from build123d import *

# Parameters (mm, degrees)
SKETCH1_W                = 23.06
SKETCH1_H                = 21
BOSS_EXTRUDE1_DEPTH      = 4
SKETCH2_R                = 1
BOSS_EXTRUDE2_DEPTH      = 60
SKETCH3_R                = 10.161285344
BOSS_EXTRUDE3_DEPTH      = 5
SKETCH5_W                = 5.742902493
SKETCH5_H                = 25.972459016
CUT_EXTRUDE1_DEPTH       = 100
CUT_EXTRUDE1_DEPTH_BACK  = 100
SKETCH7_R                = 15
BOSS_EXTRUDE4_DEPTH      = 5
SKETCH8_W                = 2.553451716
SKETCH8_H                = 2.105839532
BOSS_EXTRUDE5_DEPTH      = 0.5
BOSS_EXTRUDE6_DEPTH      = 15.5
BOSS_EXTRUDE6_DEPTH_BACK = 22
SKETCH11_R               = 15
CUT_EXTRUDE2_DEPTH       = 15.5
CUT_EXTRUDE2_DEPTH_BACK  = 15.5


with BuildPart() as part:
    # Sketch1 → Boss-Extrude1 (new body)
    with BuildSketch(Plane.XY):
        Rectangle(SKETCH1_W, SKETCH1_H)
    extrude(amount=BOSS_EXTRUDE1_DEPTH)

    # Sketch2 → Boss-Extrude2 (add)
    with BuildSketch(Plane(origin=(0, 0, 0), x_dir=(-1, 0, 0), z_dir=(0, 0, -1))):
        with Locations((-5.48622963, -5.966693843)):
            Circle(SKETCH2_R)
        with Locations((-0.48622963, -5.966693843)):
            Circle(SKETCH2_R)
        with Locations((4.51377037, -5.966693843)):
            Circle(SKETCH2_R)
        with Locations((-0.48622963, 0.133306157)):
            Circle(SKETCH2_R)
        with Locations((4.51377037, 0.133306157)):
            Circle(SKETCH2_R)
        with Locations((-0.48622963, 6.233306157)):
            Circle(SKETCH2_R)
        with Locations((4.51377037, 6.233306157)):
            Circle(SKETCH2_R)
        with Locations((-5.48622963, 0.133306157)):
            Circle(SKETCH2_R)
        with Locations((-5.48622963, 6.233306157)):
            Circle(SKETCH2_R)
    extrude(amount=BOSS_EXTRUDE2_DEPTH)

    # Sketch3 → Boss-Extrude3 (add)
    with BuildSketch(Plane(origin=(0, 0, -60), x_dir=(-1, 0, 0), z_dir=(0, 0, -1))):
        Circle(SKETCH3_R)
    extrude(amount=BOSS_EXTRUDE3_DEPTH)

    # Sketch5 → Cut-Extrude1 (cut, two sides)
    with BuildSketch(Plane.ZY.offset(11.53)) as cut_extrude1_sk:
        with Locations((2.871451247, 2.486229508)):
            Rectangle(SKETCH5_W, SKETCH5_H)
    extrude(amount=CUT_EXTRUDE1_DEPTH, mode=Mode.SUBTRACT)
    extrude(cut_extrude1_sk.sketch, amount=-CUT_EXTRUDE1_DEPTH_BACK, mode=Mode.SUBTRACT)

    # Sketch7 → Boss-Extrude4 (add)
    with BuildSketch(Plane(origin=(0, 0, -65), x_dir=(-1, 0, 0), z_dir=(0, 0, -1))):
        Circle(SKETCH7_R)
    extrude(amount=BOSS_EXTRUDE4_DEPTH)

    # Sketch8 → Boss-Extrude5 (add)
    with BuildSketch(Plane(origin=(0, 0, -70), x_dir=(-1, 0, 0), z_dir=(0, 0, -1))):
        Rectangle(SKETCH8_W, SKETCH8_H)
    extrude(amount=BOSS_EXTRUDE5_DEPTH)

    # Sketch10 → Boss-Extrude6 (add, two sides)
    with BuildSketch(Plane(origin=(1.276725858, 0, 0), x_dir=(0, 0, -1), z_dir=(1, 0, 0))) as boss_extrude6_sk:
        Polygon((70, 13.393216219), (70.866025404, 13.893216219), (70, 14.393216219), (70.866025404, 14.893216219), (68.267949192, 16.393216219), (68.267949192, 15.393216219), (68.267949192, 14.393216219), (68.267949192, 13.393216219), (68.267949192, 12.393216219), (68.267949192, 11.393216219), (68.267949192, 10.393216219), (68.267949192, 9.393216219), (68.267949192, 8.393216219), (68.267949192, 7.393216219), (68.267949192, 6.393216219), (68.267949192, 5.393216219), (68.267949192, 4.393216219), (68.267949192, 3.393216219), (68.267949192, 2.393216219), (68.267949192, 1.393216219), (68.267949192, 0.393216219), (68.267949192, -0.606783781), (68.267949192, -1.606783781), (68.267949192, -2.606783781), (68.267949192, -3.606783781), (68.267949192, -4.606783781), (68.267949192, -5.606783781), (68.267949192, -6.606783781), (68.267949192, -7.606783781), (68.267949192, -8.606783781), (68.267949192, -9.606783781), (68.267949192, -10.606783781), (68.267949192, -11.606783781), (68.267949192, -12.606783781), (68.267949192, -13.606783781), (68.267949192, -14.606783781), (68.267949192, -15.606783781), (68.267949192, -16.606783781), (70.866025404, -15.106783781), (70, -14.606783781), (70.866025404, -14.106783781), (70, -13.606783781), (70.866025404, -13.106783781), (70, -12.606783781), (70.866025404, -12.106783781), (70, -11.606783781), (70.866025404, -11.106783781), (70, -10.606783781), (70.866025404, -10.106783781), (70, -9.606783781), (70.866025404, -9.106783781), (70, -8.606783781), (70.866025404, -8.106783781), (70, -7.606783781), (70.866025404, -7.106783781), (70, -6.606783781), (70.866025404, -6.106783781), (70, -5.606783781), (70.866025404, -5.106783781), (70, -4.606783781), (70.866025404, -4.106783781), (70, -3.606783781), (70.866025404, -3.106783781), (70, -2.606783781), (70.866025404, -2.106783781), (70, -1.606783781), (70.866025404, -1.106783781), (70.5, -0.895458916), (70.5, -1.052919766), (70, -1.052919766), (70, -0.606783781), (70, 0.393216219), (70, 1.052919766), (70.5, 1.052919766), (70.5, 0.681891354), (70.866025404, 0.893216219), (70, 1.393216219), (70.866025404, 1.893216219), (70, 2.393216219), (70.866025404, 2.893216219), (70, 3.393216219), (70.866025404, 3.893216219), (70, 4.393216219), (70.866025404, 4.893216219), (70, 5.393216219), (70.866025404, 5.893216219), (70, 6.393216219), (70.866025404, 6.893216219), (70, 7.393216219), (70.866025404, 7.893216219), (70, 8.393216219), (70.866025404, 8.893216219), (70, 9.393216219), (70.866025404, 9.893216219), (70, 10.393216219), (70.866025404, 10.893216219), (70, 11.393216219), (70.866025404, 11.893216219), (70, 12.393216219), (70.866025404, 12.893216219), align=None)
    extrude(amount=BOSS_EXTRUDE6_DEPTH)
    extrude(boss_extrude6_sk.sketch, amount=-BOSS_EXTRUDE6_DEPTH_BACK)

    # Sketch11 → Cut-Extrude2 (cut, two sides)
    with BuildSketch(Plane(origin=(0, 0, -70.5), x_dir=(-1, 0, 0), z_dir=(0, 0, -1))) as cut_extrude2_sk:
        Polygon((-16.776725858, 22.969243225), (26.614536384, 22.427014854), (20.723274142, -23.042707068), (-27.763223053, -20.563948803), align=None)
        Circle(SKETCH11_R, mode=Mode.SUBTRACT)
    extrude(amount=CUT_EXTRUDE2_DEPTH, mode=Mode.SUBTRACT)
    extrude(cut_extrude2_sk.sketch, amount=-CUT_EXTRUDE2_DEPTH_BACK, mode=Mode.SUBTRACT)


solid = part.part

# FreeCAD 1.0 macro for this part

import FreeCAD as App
import Part
import Sketcher

V = App.Vector
Q = App.Units.Quantity


def add_polygon(sketch, points):
    """Adds a closed chain of lines whose ends are joined by coincident constraints."""
    first, n = sketch.GeometryCount, len(points)
    for a, b in zip(points, points[1:] + points[:1]):
        sketch.addGeometry(Part.LineSegment(App.Vector(*a, 0), App.Vector(*b, 0)), False)
    for i in range(n):
        sketch.addConstraint(Sketcher.Constraint("Coincident", first + i, 2, first + (i + 1) % n, 1))

doc = App.newDocument("Part")
body = doc.addObject("PartDesign::Body", "Body")

# Sketch on XY plane
sketch1 = doc.addObject("Sketcher::SketchObject", "Sketch")
body.addObject(sketch1)
sketch1.AttachmentSupport = (doc.XY_Plane, [""])
sketch1.MapMode = "FlatFace"
add_polygon(sketch1, [(-11.53, 10.5), (-11.53, -10.5), (11.53, -10.5), (11.53, 10.5)])  # lines 0-3
sketch1.addConstraint(Sketcher.Constraint("Vertical", 0))
sketch1.addConstraint(Sketcher.Constraint("Horizontal", 1))
sketch1.addConstraint(Sketcher.Constraint("Vertical", 2))
sketch1.addConstraint(Sketcher.Constraint("Horizontal", 3))
sketch1.addConstraint(Sketcher.Constraint("Symmetric", 0, 2, 2, 2, -1, 1))
sketch1.addConstraint(Sketcher.Constraint("DistanceY", 0, 2, 0, 1, 21.0))
sketch1.addConstraint(Sketcher.Constraint("DistanceX", 1, 1, 1, 2, 23.06))
pad1 = doc.addObject("PartDesign::Pad", "Pad")
body.addObject(pad1)
pad1.Profile = sketch1
pad1.Length = 4

# Sketch on XY plane
sketch2 = doc.addObject("Sketcher::SketchObject", "Sketch001")
body.addObject(sketch2)
sketch2.AttachmentSupport = (doc.XY_Plane, [""])
sketch2.MapMode = "FlatFace"
sketch2.addGeometry(Part.Circle(V(5.48623, -5.966694, 0), V(0, 0, 1), 1), False)
sketch2.addGeometry(Part.Circle(V(0.48623, -5.966694, 0), V(0, 0, 1), 1), False)
sketch2.addGeometry(Part.Circle(V(-4.51377, -5.966694, 0), V(0, 0, 1), 1), False)
sketch2.addGeometry(Part.Circle(V(0.48623, 0.133306, 0), V(0, 0, 1), 1), False)
sketch2.addGeometry(Part.Circle(V(-4.51377, 0.133306, 0), V(0, 0, 1), 1), False)
sketch2.addGeometry(Part.Circle(V(0.48623, 6.233306, 0), V(0, 0, 1), 1), False)
sketch2.addGeometry(Part.Circle(V(-4.51377, 6.233306, 0), V(0, 0, 1), 1), False)
sketch2.addGeometry(Part.Circle(V(5.48623, 0.133306, 0), V(0, 0, 1), 1), False)
sketch2.addGeometry(Part.Circle(V(5.48623, 6.233306, 0), V(0, 0, 1), 1), False)
sketch2.addConstraint(Sketcher.Constraint("Equal", 0, 1))
sketch2.addConstraint(Sketcher.Constraint("Equal", 1, 2))
sketch2.addConstraint(Sketcher.Constraint("Equal", 2, 3))
sketch2.addConstraint(Sketcher.Constraint("Equal", 3, 4))
sketch2.addConstraint(Sketcher.Constraint("Equal", 4, 5))
sketch2.addConstraint(Sketcher.Constraint("Equal", 5, 6))
sketch2.addConstraint(Sketcher.Constraint("Equal", 6, 7))
sketch2.addConstraint(Sketcher.Constraint("Equal", 7, 8))
sketch2.addConstraint(Sketcher.Constraint("Horizontal", 0, 3, 1, 3))
sketch2.addConstraint(Sketcher.Constraint("Horizontal", 1, 3, 2, 3))
sketch2.addConstraint(Sketcher.Constraint("Horizontal", 3, 3, 4, 3))
sketch2.addConstraint(Sketcher.Constraint("Horizontal", 5, 3, 6, 3))
sketch2.addConstraint(Sketcher.Constraint("Horizontal", 4, 3, 7, 3))
sketch2.addConstraint(Sketcher.Constraint("Horizontal", 6, 3, 8, 3))
sketch2.addConstraint(Sketcher.Constraint("Vertical", 1, 3, 3, 3))
sketch2.addConstraint(Sketcher.Constraint("Vertical", 2, 3, 4, 3))
sketch2.addConstraint(Sketcher.Constraint("Vertical", 3, 3, 5, 3))
sketch2.addConstraint(Sketcher.Constraint("Vertical", 4, 3, 6, 3))
sketch2.addConstraint(Sketcher.Constraint("Vertical", 0, 3, 7, 3))
sketch2.addConstraint(Sketcher.Constraint("Vertical", 7, 3, 8, 3))
sketch2.addConstraint(Sketcher.Constraint("Diameter", 0, 2.0))
sketch2.addConstraint(Sketcher.Constraint("DistanceX", 1, 3, 0, 3, 5.0))
sketch2.addConstraint(Sketcher.Constraint("DistanceX", 2, 3, 1, 3, 5.0))
sketch2.addConstraint(Sketcher.Constraint("DistanceY", 1, 3, 3, 3, 6.1))
sketch2.addConstraint(Sketcher.Constraint("DistanceY", 3, 3, 5, 3, 6.1))
sketch2.addConstraint(Sketcher.Constraint("DistanceX", -1, 1, 0, 3, 5.48623))
sketch2.addConstraint(Sketcher.Constraint("DistanceY", 0, 3, -1, 1, 5.966694))
pad2 = doc.addObject("PartDesign::Pad", "Pad001")
body.addObject(pad2)
pad2.Profile = sketch2
pad2.Length = 60
pad2.Reversed = True

# Sketch on XY plane
sketch3 = doc.addObject("Sketcher::SketchObject", "Sketch002")
body.addObject(sketch3)
sketch3.AttachmentSupport = (doc.XY_Plane, [""])
sketch3.MapMode = "FlatFace"
sketch3.AttachmentOffset = App.Placement(V(0, 0, -60), App.Rotation())
sketch3.addGeometry(Part.Circle(V(0, 0, 0), V(0, 0, 1), 10.161285), False)
sketch3.addConstraint(Sketcher.Constraint("Coincident", 0, 3, -1, 1))
sketch3.addConstraint(Sketcher.Constraint("Diameter", 0, 20.322571))
pad3 = doc.addObject("PartDesign::Pad", "Pad002")
body.addObject(pad3)
pad3.Profile = sketch3
pad3.Length = 5
pad3.Reversed = True

# Sketch on YZ plane
sketch4 = doc.addObject("Sketcher::SketchObject", "Sketch003")
body.addObject(sketch4)
sketch4.AttachmentSupport = (doc.YZ_Plane, [""])
sketch4.MapMode = "FlatFace"
sketch4.AttachmentOffset = App.Placement(V(0, 0, -11.53), App.Rotation())
add_polygon(sketch4, [(15.472459, 0), (-10.5, 0), (-10.5, 5.742902), (15.472459, 5.742902)])  # lines 0-3
sketch4.addConstraint(Sketcher.Constraint("Horizontal", 0))
sketch4.addConstraint(Sketcher.Constraint("Vertical", 1))
sketch4.addConstraint(Sketcher.Constraint("Horizontal", 2))
sketch4.addConstraint(Sketcher.Constraint("Vertical", 3))
sketch4.addConstraint(Sketcher.Constraint("PointOnObject", 0, 2, -1))
sketch4.addConstraint(Sketcher.Constraint("DistanceX", 0, 2, -1, 1, 10.5))
sketch4.addConstraint(Sketcher.Constraint("DistanceX", 0, 2, 0, 1, 25.972459))
sketch4.addConstraint(Sketcher.Constraint("DistanceY", 1, 1, 1, 2, 5.742902))
pocket1 = doc.addObject("PartDesign::Pocket", "Pocket")
body.addObject(pocket1)
pocket1.Profile = sketch4
pocket1.Type = "ThroughAll"
pocket1.Midplane = True

# Sketch on XY plane
sketch5 = doc.addObject("Sketcher::SketchObject", "Sketch004")
body.addObject(sketch5)
sketch5.AttachmentSupport = (doc.XY_Plane, [""])
sketch5.MapMode = "FlatFace"
sketch5.AttachmentOffset = App.Placement(V(0, 0, -65), App.Rotation())
sketch5.addGeometry(Part.Circle(V(0, 0, 0), V(0, 0, 1), 15), False)
sketch5.addConstraint(Sketcher.Constraint("Coincident", 0, 3, -1, 1))
sketch5.addConstraint(Sketcher.Constraint("Diameter", 0, 30.0))
pad4 = doc.addObject("PartDesign::Pad", "Pad003")
body.addObject(pad4)
pad4.Profile = sketch5
pad4.Length = 5
pad4.Reversed = True

# Sketch on XY plane
sketch6 = doc.addObject("Sketcher::SketchObject", "Sketch005")
body.addObject(sketch6)
sketch6.AttachmentSupport = (doc.XY_Plane, [""])
sketch6.MapMode = "FlatFace"
sketch6.AttachmentOffset = App.Placement(V(0, 0, -70), App.Rotation())
add_polygon(sketch6, [(1.276726, 1.05292), (1.276726, -1.05292), (-1.276726, -1.05292), (-1.276726, 1.05292)])  # lines 0-3
sketch6.addConstraint(Sketcher.Constraint("Vertical", 0))
sketch6.addConstraint(Sketcher.Constraint("Horizontal", 1))
sketch6.addConstraint(Sketcher.Constraint("Vertical", 2))
sketch6.addConstraint(Sketcher.Constraint("Horizontal", 3))
sketch6.addConstraint(Sketcher.Constraint("Symmetric", 0, 2, 2, 2, -1, 1))
sketch6.addConstraint(Sketcher.Constraint("DistanceX", 1, 2, 1, 1, 2.553452))
sketch6.addConstraint(Sketcher.Constraint("DistanceY", 0, 2, 0, 1, 2.10584))
pad5 = doc.addObject("PartDesign::Pad", "Pad004")
body.addObject(pad5)
pad5.Profile = sketch6
pad5.Length = 0.5
pad5.Reversed = True

# Sketch on YZ plane
sketch7 = doc.addObject("Sketcher::SketchObject", "Sketch006")
body.addObject(sketch7)
sketch7.AttachmentSupport = (doc.YZ_Plane, [""])
sketch7.MapMode = "FlatFace"
sketch7.AttachmentOffset = App.Placement(V(0, 0, 1.276726), App.Rotation())
add_polygon(sketch7, [(13.393216, -70), (13.893216, -70.866025), (14.393216, -70), (14.893216, -70.866025), (16.393216, -68.267949), (-16.606784, -68.267949), (-15.106784, -70.866025), (-14.606784, -70), (-14.106784, -70.866025), (-13.606784, -70), (-13.106784, -70.866025), (-12.606784, -70), (-12.106784, -70.866025), (-11.606784, -70), (-11.106784, -70.866025), (-10.606784, -70), (-10.106784, -70.866025), (-9.606784, -70), (-9.106784, -70.866025), (-8.606784, -70), (-8.106784, -70.866025), (-7.606784, -70), (-7.106784, -70.866025), (-6.606784, -70), (-6.106784, -70.866025), (-5.606784, -70), (-5.106784, -70.866025), (-4.606784, -70), (-4.106784, -70.866025), (-3.606784, -70), (-3.106784, -70.866025), (-2.606784, -70), (-2.106784, -70.866025), (-1.606784, -70), (-1.106784, -70.866025), (-0.895459, -70.5), (-1.05292, -70.5), (-1.05292, -70), (1.05292, -70), (1.05292, -70.5), (0.681891, -70.5), (0.893216, -70.866025), (1.393216, -70), (1.893216, -70.866025), (2.393216, -70), (2.893216, -70.866025), (3.393216, -70), (3.893216, -70.866025), (4.393216, -70), (4.893216, -70.866025), (5.393216, -70), (5.893216, -70.866025), (6.393216, -70), (6.893216, -70.866025), (7.393216, -70), (7.893216, -70.866025), (8.393216, -70), (8.893216, -70.866025), (9.393216, -70), (9.893216, -70.866025), (10.393216, -70), (10.893216, -70.866025), (11.393216, -70), (11.893216, -70.866025), (12.393216, -70), (12.893216, -70.866025)])  # lines 0-65
sketch7.addConstraint(Sketcher.Constraint("Horizontal", 4))
sketch7.addConstraint(Sketcher.Constraint("Horizontal", 35))
sketch7.addConstraint(Sketcher.Constraint("Vertical", 36))
sketch7.addConstraint(Sketcher.Constraint("Horizontal", 37))
sketch7.addConstraint(Sketcher.Constraint("Vertical", 38))
sketch7.addConstraint(Sketcher.Constraint("Horizontal", 39))
sketch7.addConstraint(Sketcher.Constraint("Symmetric", 35, 2, 38, 2, -2))
sketch7.addConstraint(Sketcher.Constraint("Parallel", 0, 2))
sketch7.addConstraint(Sketcher.Constraint("Parallel", 1, 3))
sketch7.addConstraint(Sketcher.Constraint("Parallel", 2, 5))
sketch7.addConstraint(Sketcher.Constraint("Parallel", 3, 6))
sketch7.addConstraint(Sketcher.Constraint("Parallel", 5, 7))
sketch7.addConstraint(Sketcher.Constraint("Parallel", 6, 8))
sketch7.addConstraint(Sketcher.Constraint("Parallel", 7, 9))
sketch7.addConstraint(Sketcher.Constraint("Parallel", 8, 10))
sketch7.addConstraint(Sketcher.Constraint("Parallel", 9, 11))
sketch7.addConstraint(Sketcher.Constraint("Parallel", 10, 12))
sketch7.addConstraint(Sketcher.Constraint("Parallel", 11, 13))
sketch7.addConstraint(Sketcher.Constraint("Parallel", 12, 14))
sketch7.addConstraint(Sketcher.Constraint("Parallel", 13, 15))
sketch7.addConstraint(Sketcher.Constraint("Parallel", 14, 16))
sketch7.addConstraint(Sketcher.Constraint("Parallel", 15, 17))
sketch7.addConstraint(Sketcher.Constraint("Parallel", 16, 18))
sketch7.addConstraint(Sketcher.Constraint("Parallel", 17, 19))
sketch7.addConstraint(Sketcher.Constraint("Parallel", 18, 20))
sketch7.addConstraint(Sketcher.Constraint("Parallel", 19, 21))
sketch7.addConstraint(Sketcher.Constraint("Parallel", 20, 22))
sketch7.addConstraint(Sketcher.Constraint("Parallel", 21, 23))
sketch7.addConstraint(Sketcher.Constraint("Parallel", 22, 24))
sketch7.addConstraint(Sketcher.Constraint("Parallel", 23, 25))
sketch7.addConstraint(Sketcher.Constraint("Parallel", 24, 26))
sketch7.addConstraint(Sketcher.Constraint("Parallel", 25, 27))
sketch7.addConstraint(Sketcher.Constraint("Parallel", 26, 28))
sketch7.addConstraint(Sketcher.Constraint("Parallel", 27, 29))
sketch7.addConstraint(Sketcher.Constraint("Parallel", 28, 30))
sketch7.addConstraint(Sketcher.Constraint("Parallel", 29, 31))
sketch7.addConstraint(Sketcher.Constraint("Parallel", 30, 32))
sketch7.addConstraint(Sketcher.Constraint("Parallel", 31, 33))
sketch7.addConstraint(Sketcher.Constraint("Parallel", 32, 34))
sketch7.addConstraint(Sketcher.Constraint("Parallel", 33, 40))
sketch7.addConstraint(Sketcher.Constraint("Parallel", 34, 41))
sketch7.addConstraint(Sketcher.Constraint("Parallel", 40, 42))
sketch7.addConstraint(Sketcher.Constraint("Parallel", 41, 43))
sketch7.addConstraint(Sketcher.Constraint("Parallel", 42, 44))
sketch7.addConstraint(Sketcher.Constraint("Parallel", 43, 45))
sketch7.addConstraint(Sketcher.Constraint("Parallel", 44, 46))
sketch7.addConstraint(Sketcher.Constraint("Parallel", 45, 47))
sketch7.addConstraint(Sketcher.Constraint("Parallel", 46, 48))
sketch7.addConstraint(Sketcher.Constraint("Parallel", 47, 49))
sketch7.addConstraint(Sketcher.Constraint("Parallel", 48, 50))
sketch7.addConstraint(Sketcher.Constraint("Parallel", 49, 51))
sketch7.addConstraint(Sketcher.Constraint("Parallel", 50, 52))
sketch7.addConstraint(Sketcher.Constraint("Parallel", 51, 53))
sketch7.addConstraint(Sketcher.Constraint("Parallel", 52, 54))
sketch7.addConstraint(Sketcher.Constraint("Parallel", 53, 55))
sketch7.addConstraint(Sketcher.Constraint("Parallel", 54, 56))
sketch7.addConstraint(Sketcher.Constraint("Parallel", 55, 57))
sketch7.addConstraint(Sketcher.Constraint("Parallel", 56, 58))
sketch7.addConstraint(Sketcher.Constraint("Parallel", 57, 59))
sketch7.addConstraint(Sketcher.Constraint("Parallel", 58, 60))
sketch7.addConstraint(Sketcher.Constraint("Parallel", 59, 61))
sketch7.addConstraint(Sketcher.Constraint("Parallel", 60, 62))
sketch7.addConstraint(Sketcher.Constraint("Parallel", 61, 63))
sketch7.addConstraint(Sketcher.Constraint("Parallel", 62, 64))
sketch7.addConstraint(Sketcher.Constraint("Parallel", 63, 65))
sketch7.addConstraint(Sketcher.Constraint("Horizontal", 0, 2, 2, 2))
sketch7.addConstraint(Sketcher.Constraint("Horizontal", 2, 2, 5, 2))
sketch7.addConstraint(Sketcher.Constraint("Horizontal", 1, 2, 6, 2))
sketch7.addConstraint(Sketcher.Constraint("Horizontal", 5, 2, 7, 2))
sketch7.addConstraint(Sketcher.Constraint("Horizontal", 6, 2, 8, 2))
sketch7.addConstraint(Sketcher.Constraint("Horizontal", 7, 2, 9, 2))
sketch7.addConstraint(Sketcher.Constraint("Horizontal", 8, 2, 10, 2))
sketch7.addConstraint(Sketcher.Constraint("Horizontal", 9, 2, 11, 2))
sketch7.addConstraint(Sketcher.Constraint("Horizontal", 10, 2, 12, 2))
sketch7.addConstraint(Sketcher.Constraint("Horizontal", 11, 2, 13, 2))
sketch7.addConstraint(Sketcher.Constraint("Horizontal", 12, 2, 14, 2))
sketch7.addConstraint(Sketcher.Constraint("Horizontal", 13, 2, 15, 2))
sketch7.addConstraint(Sketcher.Constraint("Horizontal", 14, 2, 16, 2))
sketch7.addConstraint(Sketcher.Constraint("Horizontal", 15, 2, 17, 2))
sketch7.addConstraint(Sketcher.Constraint("Horizontal", 16, 2, 18, 2))
sketch7.addConstraint(Sketcher.Constraint("Horizontal", 17, 2, 19, 2))
sketch7.addConstraint(Sketcher.Constraint("Horizontal", 18, 2, 20, 2))
sketch7.addConstraint(Sketcher.Constraint("Horizontal", 19, 2, 21, 2))
sketch7.addConstraint(Sketcher.Constraint("Horizontal", 20, 2, 22, 2))
sketch7.addConstraint(Sketcher.Constraint("Horizontal", 21, 2, 23, 2))
sketch7.addConstraint(Sketcher.Constraint("Horizontal", 22, 2, 24, 2))
sketch7.addConstraint(Sketcher.Constraint("Horizontal", 23, 2, 25, 2))
sketch7.addConstraint(Sketcher.Constraint("Horizontal", 24, 2, 26, 2))
sketch7.addConstraint(Sketcher.Constraint("Horizontal", 25, 2, 27, 2))
sketch7.addConstraint(Sketcher.Constraint("Horizontal", 26, 2, 28, 2))
sketch7.addConstraint(Sketcher.Constraint("Horizontal", 27, 2, 29, 2))
sketch7.addConstraint(Sketcher.Constraint("Horizontal", 28, 2, 30, 2))
sketch7.addConstraint(Sketcher.Constraint("Horizontal", 29, 2, 31, 2))
sketch7.addConstraint(Sketcher.Constraint("Horizontal", 30, 2, 32, 2))
sketch7.addConstraint(Sketcher.Constraint("Horizontal", 31, 2, 33, 2))
sketch7.addConstraint(Sketcher.Constraint("Horizontal", 32, 2, 36, 2))
sketch7.addConstraint(Sketcher.Constraint("Horizontal", 33, 2, 40, 2))
sketch7.addConstraint(Sketcher.Constraint("Horizontal", 37, 2, 41, 2))
sketch7.addConstraint(Sketcher.Constraint("Horizontal", 40, 2, 42, 2))
sketch7.addConstraint(Sketcher.Constraint("Horizontal", 41, 2, 43, 2))
sketch7.addConstraint(Sketcher.Constraint("Horizontal", 42, 2, 44, 2))
sketch7.addConstraint(Sketcher.Constraint("Horizontal", 43, 2, 45, 2))
sketch7.addConstraint(Sketcher.Constraint("Horizontal", 44, 2, 46, 2))
sketch7.addConstraint(Sketcher.Constraint("Horizontal", 45, 2, 47, 2))
sketch7.addConstraint(Sketcher.Constraint("Horizontal", 46, 2, 48, 2))
sketch7.addConstraint(Sketcher.Constraint("Horizontal", 47, 2, 49, 2))
sketch7.addConstraint(Sketcher.Constraint("Horizontal", 48, 2, 50, 2))
sketch7.addConstraint(Sketcher.Constraint("Horizontal", 49, 2, 51, 2))
sketch7.addConstraint(Sketcher.Constraint("Horizontal", 50, 2, 52, 2))
sketch7.addConstraint(Sketcher.Constraint("Horizontal", 51, 2, 53, 2))
sketch7.addConstraint(Sketcher.Constraint("Horizontal", 52, 2, 54, 2))
sketch7.addConstraint(Sketcher.Constraint("Horizontal", 53, 2, 55, 2))
sketch7.addConstraint(Sketcher.Constraint("Horizontal", 54, 2, 56, 2))
sketch7.addConstraint(Sketcher.Constraint("Horizontal", 55, 2, 57, 2))
sketch7.addConstraint(Sketcher.Constraint("Horizontal", 56, 2, 58, 2))
sketch7.addConstraint(Sketcher.Constraint("Horizontal", 57, 2, 59, 2))
sketch7.addConstraint(Sketcher.Constraint("Horizontal", 58, 2, 60, 2))
sketch7.addConstraint(Sketcher.Constraint("Horizontal", 59, 2, 61, 2))
sketch7.addConstraint(Sketcher.Constraint("Horizontal", 60, 2, 62, 2))
sketch7.addConstraint(Sketcher.Constraint("Horizontal", 61, 2, 63, 2))
sketch7.addConstraint(Sketcher.Constraint("Horizontal", 62, 2, 64, 2))
sketch7.addConstraint(Sketcher.Constraint("Horizontal", 63, 2, 65, 2))
sketch7.addConstraint(Sketcher.Constraint("Equal", 0, 1))
sketch7.addConstraint(Sketcher.Constraint("DistanceX", 4, 2, 4, 1, 33.0))
sketch7.addConstraint(Sketcher.Constraint("Angle", 0, Q("-60 deg")))
sketch7.addConstraint(Sketcher.Constraint("Distance", 0, 1.0))
sketch7.addConstraint(Sketcher.Constraint("Distance", 3, 3.0))
sketch7.addConstraint(Sketcher.Constraint("DistanceY", 36, 1, 36, 2, 0.5))
sketch7.addConstraint(Sketcher.Constraint("DistanceY", 1, 2, -1, 1, 70.0))
sketch7.addConstraint(Sketcher.Constraint("DistanceX", 35, 2, 35, 1, 0.157461))
sketch7.addConstraint(Sketcher.Constraint("DistanceX", 37, 1, 37, 2, 2.10584))
pad6 = doc.addObject("PartDesign::Pad", "Pad005")
body.addObject(pad6)
pad6.Profile = sketch7
pad6.Type = "TwoLengths"
pad6.Length = 15.5
pad6.Length2 = 22

# Sketch on XY plane
sketch8 = doc.addObject("Sketcher::SketchObject", "Sketch007")
body.addObject(sketch8)
sketch8.AttachmentSupport = (doc.XY_Plane, [""])
sketch8.MapMode = "FlatFace"
sketch8.AttachmentOffset = App.Placement(V(0, 0, -70.5), App.Rotation())
add_polygon(sketch8, [(-26.614536, 22.427015), (16.776726, 22.969243), (27.763223, -20.563949), (-20.723274, -23.042707)])  # lines 0-3
sketch8.addGeometry(Part.Circle(V(0, 0, 0), V(0, 0, 1), 15), False)  # 4
sketch8.addConstraint(Sketcher.Constraint("Coincident", 4, 3, -1, 1))
sketch8.addConstraint(Sketcher.Constraint("Diameter", 4, 30.0))
sketch8.addConstraint(Sketcher.Constraint("DistanceX", 2, 2, 0, 2, 37.5))
sketch8.addConstraint(Sketcher.Constraint("Distance", 0, 43.39465))
sketch8.addConstraint(Sketcher.Constraint("Distance", 1, 44.898128))
sketch8.addConstraint(Sketcher.Constraint("DistanceY", 1, 2, -1, 1, 20.563949))
sketch8.addConstraint(Sketcher.Constraint("DistanceY", 2, 2, 1, 2, 2.478758))
sketch8.addConstraint(Sketcher.Constraint("DistanceY", 2, 2, 0, 2, 46.01195))
sketch8.addConstraint(Sketcher.Constraint("DistanceY", 3, 2, 0, 2, 0.542228))
sketch8.addConstraint(Sketcher.Constraint("DistanceX", -1, 1, 0, 2, 16.776726))
pocket2 = doc.addObject("PartDesign::Pocket", "Pocket001")
body.addObject(pocket2)
pocket2.Profile = sketch8
pocket2.Type = "ThroughAll"
pocket2.Midplane = True

doc.recompute()
